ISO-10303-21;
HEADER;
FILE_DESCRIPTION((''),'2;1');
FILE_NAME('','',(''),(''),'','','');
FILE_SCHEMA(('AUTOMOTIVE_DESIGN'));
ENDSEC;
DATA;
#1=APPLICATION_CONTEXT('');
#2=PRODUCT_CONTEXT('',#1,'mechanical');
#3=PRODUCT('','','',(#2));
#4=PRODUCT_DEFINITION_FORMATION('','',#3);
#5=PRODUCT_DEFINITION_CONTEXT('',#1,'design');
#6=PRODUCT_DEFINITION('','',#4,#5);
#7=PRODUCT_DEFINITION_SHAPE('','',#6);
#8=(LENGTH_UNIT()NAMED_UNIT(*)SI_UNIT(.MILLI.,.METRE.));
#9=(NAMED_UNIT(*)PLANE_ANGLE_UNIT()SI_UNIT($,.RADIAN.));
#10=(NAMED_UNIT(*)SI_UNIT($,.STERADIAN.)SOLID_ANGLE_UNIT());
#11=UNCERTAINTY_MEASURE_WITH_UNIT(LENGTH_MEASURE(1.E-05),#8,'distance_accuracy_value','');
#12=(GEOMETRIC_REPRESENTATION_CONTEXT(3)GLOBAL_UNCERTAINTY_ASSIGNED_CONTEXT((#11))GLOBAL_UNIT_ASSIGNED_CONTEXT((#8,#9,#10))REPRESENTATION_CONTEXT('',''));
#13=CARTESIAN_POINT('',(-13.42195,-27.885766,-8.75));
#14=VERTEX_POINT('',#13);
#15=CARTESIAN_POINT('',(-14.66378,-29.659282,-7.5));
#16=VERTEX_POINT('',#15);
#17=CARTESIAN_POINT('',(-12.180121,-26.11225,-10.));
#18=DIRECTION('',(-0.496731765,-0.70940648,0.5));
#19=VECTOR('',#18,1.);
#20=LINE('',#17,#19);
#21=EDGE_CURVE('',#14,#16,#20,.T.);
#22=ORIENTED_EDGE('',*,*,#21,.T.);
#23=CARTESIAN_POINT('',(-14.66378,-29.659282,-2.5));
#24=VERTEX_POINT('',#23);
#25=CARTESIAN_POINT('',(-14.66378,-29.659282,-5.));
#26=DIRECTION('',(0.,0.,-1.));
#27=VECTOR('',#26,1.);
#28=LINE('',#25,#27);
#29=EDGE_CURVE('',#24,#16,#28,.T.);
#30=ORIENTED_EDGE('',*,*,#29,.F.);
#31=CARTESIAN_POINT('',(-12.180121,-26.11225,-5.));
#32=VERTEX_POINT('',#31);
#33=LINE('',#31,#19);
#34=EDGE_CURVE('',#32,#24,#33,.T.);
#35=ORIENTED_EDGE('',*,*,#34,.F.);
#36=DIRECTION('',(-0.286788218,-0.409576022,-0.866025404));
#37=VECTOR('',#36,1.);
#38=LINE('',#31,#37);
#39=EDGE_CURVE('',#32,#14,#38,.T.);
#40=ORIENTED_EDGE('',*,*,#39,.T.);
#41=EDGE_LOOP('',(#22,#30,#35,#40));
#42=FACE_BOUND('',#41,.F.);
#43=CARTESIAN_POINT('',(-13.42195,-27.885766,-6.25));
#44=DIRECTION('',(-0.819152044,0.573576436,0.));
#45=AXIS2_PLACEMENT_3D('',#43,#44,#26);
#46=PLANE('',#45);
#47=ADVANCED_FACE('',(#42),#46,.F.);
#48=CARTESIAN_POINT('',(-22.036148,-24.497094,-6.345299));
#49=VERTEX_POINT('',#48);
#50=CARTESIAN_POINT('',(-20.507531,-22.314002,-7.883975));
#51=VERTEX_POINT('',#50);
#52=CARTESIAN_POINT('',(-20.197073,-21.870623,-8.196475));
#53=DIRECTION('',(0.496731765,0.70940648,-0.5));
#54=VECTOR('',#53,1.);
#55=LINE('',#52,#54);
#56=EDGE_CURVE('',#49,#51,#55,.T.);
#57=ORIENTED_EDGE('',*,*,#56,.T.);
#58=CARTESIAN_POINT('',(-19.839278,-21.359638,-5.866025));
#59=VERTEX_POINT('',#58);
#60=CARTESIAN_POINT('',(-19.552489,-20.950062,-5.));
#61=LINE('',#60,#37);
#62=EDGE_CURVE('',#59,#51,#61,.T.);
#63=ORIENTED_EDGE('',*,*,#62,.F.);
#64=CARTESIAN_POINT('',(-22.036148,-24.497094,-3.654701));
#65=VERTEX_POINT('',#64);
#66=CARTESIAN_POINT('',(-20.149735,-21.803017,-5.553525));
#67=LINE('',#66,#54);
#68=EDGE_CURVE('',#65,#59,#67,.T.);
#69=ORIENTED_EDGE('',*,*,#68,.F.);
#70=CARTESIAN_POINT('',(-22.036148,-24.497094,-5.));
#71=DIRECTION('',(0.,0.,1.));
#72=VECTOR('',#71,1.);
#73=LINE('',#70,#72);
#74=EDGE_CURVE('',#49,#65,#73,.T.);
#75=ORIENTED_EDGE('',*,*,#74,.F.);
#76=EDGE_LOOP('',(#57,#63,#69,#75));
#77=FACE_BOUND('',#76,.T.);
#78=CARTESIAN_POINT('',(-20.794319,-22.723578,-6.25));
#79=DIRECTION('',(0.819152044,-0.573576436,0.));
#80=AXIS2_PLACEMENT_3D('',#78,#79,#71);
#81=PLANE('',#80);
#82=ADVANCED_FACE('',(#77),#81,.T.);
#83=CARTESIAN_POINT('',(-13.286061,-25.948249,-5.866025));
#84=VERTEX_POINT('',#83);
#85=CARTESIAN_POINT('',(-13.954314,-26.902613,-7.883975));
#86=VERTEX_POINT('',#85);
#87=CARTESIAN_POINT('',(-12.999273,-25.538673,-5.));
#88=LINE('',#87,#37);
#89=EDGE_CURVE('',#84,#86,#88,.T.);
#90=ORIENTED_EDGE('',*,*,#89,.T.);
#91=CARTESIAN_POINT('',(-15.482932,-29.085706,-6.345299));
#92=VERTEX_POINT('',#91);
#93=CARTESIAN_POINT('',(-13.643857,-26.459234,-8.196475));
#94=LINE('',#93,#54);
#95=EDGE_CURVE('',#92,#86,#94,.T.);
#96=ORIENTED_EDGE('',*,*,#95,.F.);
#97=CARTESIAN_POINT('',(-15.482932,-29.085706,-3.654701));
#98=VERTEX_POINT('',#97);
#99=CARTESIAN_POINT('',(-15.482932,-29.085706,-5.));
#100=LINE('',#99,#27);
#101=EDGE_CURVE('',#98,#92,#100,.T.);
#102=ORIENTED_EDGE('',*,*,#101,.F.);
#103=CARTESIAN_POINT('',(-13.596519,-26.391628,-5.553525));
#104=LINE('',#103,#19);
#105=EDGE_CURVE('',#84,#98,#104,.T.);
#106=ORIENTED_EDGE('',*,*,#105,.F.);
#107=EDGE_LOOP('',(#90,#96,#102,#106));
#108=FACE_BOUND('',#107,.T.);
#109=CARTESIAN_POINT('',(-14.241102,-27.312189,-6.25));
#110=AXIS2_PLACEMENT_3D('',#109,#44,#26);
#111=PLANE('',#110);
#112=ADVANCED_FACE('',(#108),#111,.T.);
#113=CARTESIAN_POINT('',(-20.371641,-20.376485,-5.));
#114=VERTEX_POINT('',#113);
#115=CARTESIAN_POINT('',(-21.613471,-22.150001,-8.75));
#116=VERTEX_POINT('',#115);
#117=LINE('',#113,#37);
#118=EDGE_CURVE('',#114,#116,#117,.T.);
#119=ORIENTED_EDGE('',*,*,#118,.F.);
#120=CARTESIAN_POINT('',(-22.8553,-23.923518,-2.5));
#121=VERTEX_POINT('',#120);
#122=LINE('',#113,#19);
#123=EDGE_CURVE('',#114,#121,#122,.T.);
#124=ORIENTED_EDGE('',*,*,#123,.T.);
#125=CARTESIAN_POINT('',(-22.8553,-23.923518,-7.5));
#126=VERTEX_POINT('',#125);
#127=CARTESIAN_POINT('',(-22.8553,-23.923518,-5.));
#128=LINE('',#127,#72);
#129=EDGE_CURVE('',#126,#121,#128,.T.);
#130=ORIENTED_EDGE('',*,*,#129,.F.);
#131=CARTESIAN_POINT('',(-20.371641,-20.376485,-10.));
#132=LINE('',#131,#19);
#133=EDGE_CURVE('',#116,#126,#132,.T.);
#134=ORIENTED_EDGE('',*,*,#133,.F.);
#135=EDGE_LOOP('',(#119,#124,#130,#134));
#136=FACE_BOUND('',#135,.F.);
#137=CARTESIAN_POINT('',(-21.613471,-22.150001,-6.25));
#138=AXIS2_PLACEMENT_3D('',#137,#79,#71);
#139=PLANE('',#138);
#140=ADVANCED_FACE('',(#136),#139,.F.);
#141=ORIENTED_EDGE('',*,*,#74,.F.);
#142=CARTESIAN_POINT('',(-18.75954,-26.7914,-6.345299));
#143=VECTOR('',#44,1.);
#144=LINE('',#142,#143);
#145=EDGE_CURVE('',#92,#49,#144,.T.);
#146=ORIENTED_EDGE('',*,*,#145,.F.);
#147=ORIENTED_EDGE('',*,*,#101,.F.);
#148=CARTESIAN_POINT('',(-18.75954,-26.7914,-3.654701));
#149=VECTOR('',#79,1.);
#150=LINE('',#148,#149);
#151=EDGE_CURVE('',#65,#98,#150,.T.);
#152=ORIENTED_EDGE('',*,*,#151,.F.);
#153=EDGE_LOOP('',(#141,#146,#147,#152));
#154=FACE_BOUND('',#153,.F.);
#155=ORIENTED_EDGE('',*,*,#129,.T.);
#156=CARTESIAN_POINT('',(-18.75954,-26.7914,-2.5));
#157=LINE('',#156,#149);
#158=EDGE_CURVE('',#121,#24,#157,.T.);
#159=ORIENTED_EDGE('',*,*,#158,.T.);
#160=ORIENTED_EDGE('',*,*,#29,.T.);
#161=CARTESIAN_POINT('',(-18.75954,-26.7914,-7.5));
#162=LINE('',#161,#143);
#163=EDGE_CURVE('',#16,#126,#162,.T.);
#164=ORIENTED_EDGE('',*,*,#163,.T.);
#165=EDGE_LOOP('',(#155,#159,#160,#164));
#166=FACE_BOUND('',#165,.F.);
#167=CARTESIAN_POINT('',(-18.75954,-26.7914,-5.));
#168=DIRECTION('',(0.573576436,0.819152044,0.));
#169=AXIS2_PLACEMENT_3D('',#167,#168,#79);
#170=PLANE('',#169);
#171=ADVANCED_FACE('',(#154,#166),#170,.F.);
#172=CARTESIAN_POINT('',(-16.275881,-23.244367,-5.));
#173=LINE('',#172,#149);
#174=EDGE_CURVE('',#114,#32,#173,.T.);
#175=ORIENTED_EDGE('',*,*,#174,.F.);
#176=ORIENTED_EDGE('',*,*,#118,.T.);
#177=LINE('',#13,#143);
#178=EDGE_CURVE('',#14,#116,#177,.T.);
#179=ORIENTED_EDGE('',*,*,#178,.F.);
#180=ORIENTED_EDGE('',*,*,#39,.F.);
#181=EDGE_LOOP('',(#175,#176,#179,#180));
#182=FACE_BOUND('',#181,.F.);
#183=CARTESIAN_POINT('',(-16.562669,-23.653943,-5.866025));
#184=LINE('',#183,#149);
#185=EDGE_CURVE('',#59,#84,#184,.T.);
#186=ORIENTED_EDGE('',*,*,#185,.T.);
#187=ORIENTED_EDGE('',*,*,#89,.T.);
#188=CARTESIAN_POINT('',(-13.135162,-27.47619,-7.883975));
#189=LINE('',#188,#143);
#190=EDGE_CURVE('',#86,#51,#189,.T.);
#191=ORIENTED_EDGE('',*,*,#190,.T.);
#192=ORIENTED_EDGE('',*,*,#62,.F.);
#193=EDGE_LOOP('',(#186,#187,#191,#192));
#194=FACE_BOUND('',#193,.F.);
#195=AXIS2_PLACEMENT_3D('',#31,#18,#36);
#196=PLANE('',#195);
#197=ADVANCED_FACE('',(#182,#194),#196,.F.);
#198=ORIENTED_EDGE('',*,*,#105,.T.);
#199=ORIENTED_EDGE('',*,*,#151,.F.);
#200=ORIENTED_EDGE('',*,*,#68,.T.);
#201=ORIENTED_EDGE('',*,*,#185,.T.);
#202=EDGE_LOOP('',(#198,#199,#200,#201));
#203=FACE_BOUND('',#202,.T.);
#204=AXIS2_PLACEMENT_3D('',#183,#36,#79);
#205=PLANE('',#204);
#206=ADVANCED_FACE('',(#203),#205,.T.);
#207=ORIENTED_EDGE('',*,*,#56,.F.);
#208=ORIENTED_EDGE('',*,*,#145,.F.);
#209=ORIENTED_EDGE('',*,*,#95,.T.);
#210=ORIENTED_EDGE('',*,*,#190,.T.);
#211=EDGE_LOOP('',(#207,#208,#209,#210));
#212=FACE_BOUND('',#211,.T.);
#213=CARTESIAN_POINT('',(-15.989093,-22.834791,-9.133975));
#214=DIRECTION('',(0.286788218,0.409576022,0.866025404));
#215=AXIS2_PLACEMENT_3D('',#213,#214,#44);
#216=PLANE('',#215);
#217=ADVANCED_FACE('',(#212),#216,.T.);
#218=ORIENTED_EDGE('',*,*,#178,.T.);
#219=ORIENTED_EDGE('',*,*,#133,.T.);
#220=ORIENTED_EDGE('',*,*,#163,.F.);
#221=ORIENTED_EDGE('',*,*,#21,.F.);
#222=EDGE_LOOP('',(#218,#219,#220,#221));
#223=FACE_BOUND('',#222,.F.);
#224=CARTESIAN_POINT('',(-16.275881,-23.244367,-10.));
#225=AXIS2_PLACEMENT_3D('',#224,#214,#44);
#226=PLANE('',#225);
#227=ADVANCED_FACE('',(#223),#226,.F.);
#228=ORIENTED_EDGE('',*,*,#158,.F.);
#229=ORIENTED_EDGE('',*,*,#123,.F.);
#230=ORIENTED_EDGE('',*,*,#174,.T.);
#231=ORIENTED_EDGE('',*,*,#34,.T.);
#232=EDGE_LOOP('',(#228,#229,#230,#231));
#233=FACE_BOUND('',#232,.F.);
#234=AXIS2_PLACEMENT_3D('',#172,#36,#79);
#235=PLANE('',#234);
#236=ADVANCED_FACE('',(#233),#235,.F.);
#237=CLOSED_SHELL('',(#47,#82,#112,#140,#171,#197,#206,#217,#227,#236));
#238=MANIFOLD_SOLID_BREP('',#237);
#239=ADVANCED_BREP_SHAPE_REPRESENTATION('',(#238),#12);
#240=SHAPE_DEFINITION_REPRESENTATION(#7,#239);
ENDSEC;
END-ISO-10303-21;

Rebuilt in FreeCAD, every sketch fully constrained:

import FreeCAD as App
import Part
import Sketcher
Q = App.Units.Quantity


def faces_at(feature, points):
    """Names of the faces that lie closest to the given points."""
    faces = feature.Shape.Faces
    near = lambda p: min(range(len(faces)), key=lambda i: faces[i].distToShape(Part.Vertex(*p))[0])
    return sorted({f"Face{near(p) + 1}" for p in points})


def add_polygon(sketch, points):
    """Adds a closed chain of lines whose ends are joined by coincident constraints."""
    first, n = sketch.GeometryCount, len(points)
    for a, b in zip(points, points[1:] + points[:1]):
        sketch.addGeometry(Part.LineSegment(App.Vector(*a, 0), App.Vector(*b, 0)), False)
    for i in range(n):
        sketch.addConstraint(Sketcher.Constraint("Coincident", first + i, 2, first + (i + 1) % n, 1))

doc = App.newDocument("Part")
body = doc.addObject("PartDesign::Body", "Body")

sketch1 = body.newObject("Sketcher::SketchObject", "Sketch")
sketch1.Placement = App.Placement(App.Vector(-18.75954, -26.7914, 0), App.Rotation(App.Vector(-0.819152044, 0.573576436, 0), App.Vector(0, 0, 0.999999999), App.Vector(0.573576436, 0.819152044, 0), "ZXY"))
add_polygon(sketch1, [(-5, -2.5), (-5, -7.5), (5, -7.5), (5, -2.5)])
sketch1.addConstraint([
    Sketcher.Constraint("Vertical", 0),
    Sketcher.Constraint("Horizontal", 1),
    Sketcher.Constraint("Vertical", 2),
    Sketcher.Constraint("Horizontal", 3),
    Sketcher.Constraint("DistanceX", 1, 1, 1, 2, Q("10 mm")),
    Sketcher.Constraint("DistanceY", 0, 2, 0, 1, Q("5 mm")),
    Sketcher.Constraint("DistanceX", 0, 2, -1, 1, Q("5 mm")),
    Sketcher.Constraint("DistanceY", 0, 2, -1, 1, Q("7.5 mm")),
])

sketch2 = body.newObject("Sketcher::SketchObject", "Sketch001")
sketch2.Placement = App.Placement(App.Vector(0, -11.246308, -15.956407), App.Rotation(App.Vector(0, -0.817378864, 0.576100506), App.Vector(1, 0, 0), App.Vector(0, 0.576100506, 0.817378864), "ZXY"))
sketch2.addGeometry(Part.LineSegment(App.Vector(14.678701, -16.275881, 0), App.Vector(19.018221, -18.75954, 0)), False)
sketch2.addConstraint([
    Sketcher.Constraint("Distance", 0, Q("5 mm")),
    Sketcher.Constraint("DistanceX", -1, 1, 0, 1, Q("14.678701 mm")),
    Sketcher.Constraint("DistanceY", 0, 1, -1, 1, Q("16.275881 mm")),
    Sketcher.Constraint("DistanceX", -1, 1, 0, 2, Q("19.018221 mm")),
])
doc.recompute()

additivepipe = body.newObject("PartDesign::AdditivePipe", "AdditivePipe")
additivepipe.Profile = sketch1
additivepipe.Spine = (sketch2, ["Edge1"])

sketch3 = body.newObject("Sketcher::SketchObject", "Sketch002")
sketch3.Placement = App.Placement(App.Vector(4.09576, -2.867882, 0), App.Rotation(App.Vector(0.573576436, 0.819152044, 0), App.Vector(0, 0, 0.999999999), App.Vector(0.819152044, -0.573576436, 0), "ZXY"))
add_polygon(sketch3, [(-28.376133, -10), (-28.376133, -5), (-30.541197, -8.75)])
sketch3.addConstraint([
    Sketcher.Constraint("Vertical", 0),
    Sketcher.Constraint("Perpendicular", 1, 2),
    Sketcher.Constraint("DistanceY", 0, 1, 0, 2, Q("5 mm")),
    Sketcher.Constraint("Angle", 1, Q("-120 deg")),
    Sketcher.Constraint("DistanceY", 0, 2, -1, 1, Q("5 mm")),
    Sketcher.Constraint("DistanceX", 0, 2, -1, 1, Q("28.376133 mm")),
])
pocket1 = body.newObject("PartDesign::Pocket", "Pocket")
pocket1.Profile = sketch3
pocket1.Type = "ThroughAll"
doc.recompute()

thickness = body.newObject("PartDesign::Thickness", "Thickness")
thickness.Base = (pocket1, faces_at(pocket1, [(-16.897, -24.131, -6.875), (-18.76, -26.791, -5)]))
thickness.Value = 1
thickness.Reversed = True
thickness.Join = "Arc"

doc.recompute()
